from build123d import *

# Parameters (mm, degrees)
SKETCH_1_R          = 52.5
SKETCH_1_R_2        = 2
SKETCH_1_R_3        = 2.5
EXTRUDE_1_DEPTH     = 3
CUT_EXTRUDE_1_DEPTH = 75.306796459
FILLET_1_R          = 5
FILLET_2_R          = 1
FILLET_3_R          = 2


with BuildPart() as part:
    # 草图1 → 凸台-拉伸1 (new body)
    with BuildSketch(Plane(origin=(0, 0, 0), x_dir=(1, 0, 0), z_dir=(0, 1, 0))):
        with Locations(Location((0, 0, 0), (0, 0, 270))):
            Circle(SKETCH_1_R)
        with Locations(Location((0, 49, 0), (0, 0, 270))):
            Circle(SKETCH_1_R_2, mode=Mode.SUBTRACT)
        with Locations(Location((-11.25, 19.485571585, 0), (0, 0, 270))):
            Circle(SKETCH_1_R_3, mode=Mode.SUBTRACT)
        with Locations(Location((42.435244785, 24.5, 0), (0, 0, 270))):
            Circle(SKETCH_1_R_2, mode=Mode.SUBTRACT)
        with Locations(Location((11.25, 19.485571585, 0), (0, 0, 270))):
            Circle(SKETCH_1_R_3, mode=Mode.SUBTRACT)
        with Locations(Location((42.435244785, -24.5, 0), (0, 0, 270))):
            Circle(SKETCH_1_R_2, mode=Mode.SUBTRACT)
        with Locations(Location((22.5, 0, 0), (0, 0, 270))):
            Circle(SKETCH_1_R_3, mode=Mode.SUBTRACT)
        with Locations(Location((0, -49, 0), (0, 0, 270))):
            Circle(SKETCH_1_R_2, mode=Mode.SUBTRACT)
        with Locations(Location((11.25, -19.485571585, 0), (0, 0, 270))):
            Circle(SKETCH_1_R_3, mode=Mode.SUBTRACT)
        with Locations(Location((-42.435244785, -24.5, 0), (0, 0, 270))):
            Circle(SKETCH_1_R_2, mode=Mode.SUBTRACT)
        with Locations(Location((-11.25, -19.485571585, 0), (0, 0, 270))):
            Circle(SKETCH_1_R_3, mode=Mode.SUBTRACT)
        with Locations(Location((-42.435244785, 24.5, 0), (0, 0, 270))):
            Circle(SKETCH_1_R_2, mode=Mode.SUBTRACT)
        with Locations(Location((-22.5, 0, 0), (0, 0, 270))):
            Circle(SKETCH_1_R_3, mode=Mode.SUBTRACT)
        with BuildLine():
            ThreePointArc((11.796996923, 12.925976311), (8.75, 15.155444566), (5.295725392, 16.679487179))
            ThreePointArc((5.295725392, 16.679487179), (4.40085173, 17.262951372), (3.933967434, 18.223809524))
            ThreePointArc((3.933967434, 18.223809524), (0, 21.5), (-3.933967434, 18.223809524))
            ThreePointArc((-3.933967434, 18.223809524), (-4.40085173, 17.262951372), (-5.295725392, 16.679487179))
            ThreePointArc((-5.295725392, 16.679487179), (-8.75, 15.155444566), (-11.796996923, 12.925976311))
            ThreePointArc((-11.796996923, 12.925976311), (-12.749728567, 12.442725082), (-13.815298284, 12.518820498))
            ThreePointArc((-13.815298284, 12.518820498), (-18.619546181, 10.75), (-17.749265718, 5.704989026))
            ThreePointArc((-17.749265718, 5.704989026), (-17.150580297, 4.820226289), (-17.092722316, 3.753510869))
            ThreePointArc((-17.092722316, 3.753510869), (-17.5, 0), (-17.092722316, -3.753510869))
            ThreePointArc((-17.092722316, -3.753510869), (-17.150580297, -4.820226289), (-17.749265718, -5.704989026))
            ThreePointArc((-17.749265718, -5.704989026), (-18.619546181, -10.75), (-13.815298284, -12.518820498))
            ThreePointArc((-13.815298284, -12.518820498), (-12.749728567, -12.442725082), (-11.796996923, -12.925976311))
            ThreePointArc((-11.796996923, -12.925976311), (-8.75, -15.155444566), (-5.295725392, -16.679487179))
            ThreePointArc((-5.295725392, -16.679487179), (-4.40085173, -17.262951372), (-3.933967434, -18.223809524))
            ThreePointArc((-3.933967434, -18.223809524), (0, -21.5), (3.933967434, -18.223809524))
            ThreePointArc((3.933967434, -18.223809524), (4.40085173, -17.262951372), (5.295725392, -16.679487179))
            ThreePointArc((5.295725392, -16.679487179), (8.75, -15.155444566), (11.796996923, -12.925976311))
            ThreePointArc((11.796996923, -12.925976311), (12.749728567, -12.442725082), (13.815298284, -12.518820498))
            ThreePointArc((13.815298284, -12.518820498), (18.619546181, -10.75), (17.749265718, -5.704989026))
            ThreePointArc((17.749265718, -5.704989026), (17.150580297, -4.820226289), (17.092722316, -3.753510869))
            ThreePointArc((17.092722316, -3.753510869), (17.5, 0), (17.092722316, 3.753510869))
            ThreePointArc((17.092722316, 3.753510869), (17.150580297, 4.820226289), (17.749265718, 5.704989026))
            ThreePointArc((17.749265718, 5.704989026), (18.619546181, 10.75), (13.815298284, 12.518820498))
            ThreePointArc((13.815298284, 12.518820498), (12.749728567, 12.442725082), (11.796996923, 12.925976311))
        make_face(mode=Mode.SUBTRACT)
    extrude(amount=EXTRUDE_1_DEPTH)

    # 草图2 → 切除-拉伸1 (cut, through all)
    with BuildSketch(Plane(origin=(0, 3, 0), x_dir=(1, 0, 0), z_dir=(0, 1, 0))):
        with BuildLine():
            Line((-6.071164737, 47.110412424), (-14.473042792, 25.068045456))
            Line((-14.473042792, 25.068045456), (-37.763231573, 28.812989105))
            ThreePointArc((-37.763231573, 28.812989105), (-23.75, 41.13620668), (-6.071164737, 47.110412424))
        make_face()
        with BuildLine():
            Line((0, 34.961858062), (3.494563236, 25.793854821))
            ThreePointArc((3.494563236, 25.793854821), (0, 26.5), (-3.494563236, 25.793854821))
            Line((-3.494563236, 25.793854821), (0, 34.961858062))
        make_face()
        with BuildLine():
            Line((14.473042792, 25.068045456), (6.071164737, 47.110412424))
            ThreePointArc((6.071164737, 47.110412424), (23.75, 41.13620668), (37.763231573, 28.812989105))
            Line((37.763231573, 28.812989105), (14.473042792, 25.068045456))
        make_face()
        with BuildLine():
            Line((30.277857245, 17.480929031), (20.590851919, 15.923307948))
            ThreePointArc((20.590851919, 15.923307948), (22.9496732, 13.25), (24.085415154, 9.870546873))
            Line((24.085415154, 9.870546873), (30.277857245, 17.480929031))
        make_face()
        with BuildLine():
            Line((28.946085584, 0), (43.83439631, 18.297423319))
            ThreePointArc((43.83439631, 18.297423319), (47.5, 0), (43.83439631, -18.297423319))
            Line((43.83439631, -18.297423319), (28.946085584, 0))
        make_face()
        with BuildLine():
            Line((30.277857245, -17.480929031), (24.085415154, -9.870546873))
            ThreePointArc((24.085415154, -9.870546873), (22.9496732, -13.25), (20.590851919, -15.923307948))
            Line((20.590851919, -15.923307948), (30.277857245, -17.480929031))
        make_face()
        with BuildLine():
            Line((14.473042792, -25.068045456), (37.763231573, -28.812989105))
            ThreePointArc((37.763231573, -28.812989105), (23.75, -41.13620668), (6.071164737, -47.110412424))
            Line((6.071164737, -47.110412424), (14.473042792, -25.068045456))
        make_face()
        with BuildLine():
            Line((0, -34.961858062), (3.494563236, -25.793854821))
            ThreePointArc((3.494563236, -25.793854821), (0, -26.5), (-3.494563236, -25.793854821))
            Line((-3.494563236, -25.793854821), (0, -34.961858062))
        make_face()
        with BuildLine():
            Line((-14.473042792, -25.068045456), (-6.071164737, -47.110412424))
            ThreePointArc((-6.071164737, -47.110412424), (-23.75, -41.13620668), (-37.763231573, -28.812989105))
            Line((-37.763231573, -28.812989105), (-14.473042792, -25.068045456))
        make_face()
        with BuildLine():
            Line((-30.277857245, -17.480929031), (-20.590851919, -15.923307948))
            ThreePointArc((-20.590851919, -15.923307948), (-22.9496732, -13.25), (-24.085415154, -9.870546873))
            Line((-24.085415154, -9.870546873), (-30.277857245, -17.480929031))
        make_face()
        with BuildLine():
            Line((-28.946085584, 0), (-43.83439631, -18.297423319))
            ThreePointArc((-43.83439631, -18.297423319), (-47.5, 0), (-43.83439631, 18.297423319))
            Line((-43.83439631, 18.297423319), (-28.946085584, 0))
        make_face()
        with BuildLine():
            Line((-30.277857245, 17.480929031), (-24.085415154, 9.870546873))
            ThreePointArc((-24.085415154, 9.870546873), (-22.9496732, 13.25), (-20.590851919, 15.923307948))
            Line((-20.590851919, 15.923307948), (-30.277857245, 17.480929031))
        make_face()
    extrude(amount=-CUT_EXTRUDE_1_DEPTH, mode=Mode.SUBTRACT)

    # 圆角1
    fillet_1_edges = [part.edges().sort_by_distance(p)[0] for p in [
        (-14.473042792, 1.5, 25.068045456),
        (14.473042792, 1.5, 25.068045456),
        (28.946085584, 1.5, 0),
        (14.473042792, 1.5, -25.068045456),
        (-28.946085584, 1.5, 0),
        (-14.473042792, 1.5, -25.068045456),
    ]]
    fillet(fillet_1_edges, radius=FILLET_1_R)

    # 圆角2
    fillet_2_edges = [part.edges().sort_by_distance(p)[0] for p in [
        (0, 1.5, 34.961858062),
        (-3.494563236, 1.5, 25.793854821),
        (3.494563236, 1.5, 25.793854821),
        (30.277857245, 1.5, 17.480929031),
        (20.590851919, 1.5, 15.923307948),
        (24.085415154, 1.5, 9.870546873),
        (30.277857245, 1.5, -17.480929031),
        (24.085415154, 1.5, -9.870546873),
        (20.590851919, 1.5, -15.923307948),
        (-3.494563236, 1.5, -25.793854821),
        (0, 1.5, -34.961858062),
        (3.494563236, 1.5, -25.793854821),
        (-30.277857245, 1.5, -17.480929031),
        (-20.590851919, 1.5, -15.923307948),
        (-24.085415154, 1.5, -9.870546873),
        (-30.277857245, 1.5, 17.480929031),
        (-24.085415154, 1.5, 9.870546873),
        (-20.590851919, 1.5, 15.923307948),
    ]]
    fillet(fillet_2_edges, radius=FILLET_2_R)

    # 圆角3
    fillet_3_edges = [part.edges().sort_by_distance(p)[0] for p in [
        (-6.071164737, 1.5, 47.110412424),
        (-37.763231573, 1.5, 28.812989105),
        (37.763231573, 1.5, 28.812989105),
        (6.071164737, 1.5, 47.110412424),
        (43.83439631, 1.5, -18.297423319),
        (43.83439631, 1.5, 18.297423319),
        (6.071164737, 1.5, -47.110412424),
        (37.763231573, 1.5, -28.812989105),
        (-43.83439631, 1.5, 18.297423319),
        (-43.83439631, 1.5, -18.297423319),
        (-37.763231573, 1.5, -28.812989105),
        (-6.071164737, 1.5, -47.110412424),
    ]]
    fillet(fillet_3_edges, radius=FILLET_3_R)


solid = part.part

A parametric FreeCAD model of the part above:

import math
import FreeCAD as App
import Part
import Sketcher
Q = App.Units.Quantity


def edges_at(feature, points):
    """Names of the edges that pass closest to the given points."""
    edges = feature.Shape.Edges
    near = lambda p: min(range(len(edges)), key=lambda i: edges[i].distToShape(Part.Vertex(*p))[0])
    return sorted({f"Edge{near(p) + 1}" for p in points})

doc = App.newDocument("Part")
body = doc.addObject("PartDesign::Body", "Body")

# Sketch on XZ plane
sketch1 = body.newObject("Sketcher::SketchObject", "Sketch")
sketch1.AttachmentSupport = (doc.getObject("XZ_Plane"), [""])
sketch1.MapMode = "FlatFace"
sketch1.addGeometry([
    Part.Circle(App.Vector(0, 0, 0), App.Vector(0, 0, 1), 52.5),  # 0
    Part.Circle(App.Vector(-42.4, -24.5, 0), App.Vector(0, 0, 1), 2),  # 1
    Part.Circle(App.Vector(0, -49, 0), App.Vector(0, 0, 1), 2),  # 2
    Part.Circle(App.Vector(-11.2, -19.5, 0), App.Vector(0, 0, 1), 2.5),  # 3
    Part.Circle(App.Vector(-42.4, 24.5, 0), App.Vector(0, 0, 1), 2),  # 4
    Part.Circle(App.Vector(-22.5, 0, 0), App.Vector(0, 0, 1), 2.5),  # 5
    Part.Circle(App.Vector(-11.2, 19.5, 0), App.Vector(0, 0, 1), 2.5),  # 6
    Part.ArcOfCircle(Part.Circle(App.Vector(0, 0, 0), App.Vector(0, 0, 1), 17.5), math.radians(-72), math.radians(-48)),  # 7
    Part.ArcOfCircle(Part.Circle(App.Vector(13.1, -14.4, 0), App.Vector(0, 0, 1), 2), math.radians(70), math.radians(132)),  # 8
    Part.ArcOfCircle(Part.Circle(App.Vector(15.2, -8.8, 0), App.Vector(0, 0, 1), 4), math.radians(-110), math.radians(50)),  # 9
    Part.ArcOfCircle(Part.Circle(App.Vector(19, -4.2, 0), App.Vector(0, 0, 1), 2), math.radians(168), math.radians(230)),  # 10
    Part.ArcOfCircle(Part.Circle(App.Vector(0, 0, 0), App.Vector(0, 0, 1), 17.5), math.radians(-12), math.radians(12)),  # 11
    Part.ArcOfCircle(Part.Circle(App.Vector(19, 4.2, 0), App.Vector(0, 0, 1), 2), math.radians(130), math.radians(192)),  # 12
    Part.ArcOfCircle(Part.Circle(App.Vector(15.2, 8.8, 0), App.Vector(0, 0, 1), 4), math.radians(-50), math.radians(110)),  # 13
    Part.ArcOfCircle(Part.Circle(App.Vector(13.1, 14.4, 0), App.Vector(0, 0, 1), 2), math.radians(-132), math.radians(-70)),  # 14
    Part.ArcOfCircle(Part.Circle(App.Vector(0, 0, 0), App.Vector(0, 0, 1), 17.5), math.radians(48), math.radians(72)),  # 15
    Part.ArcOfCircle(Part.Circle(App.Vector(5.9, 18.6, 0), App.Vector(0, 0, 1), 2), math.radians(-170), math.radians(-108)),  # 16
    Part.ArcOfCircle(Part.Circle(App.Vector(0, 17.5, 0), App.Vector(0, 0, 1), 4), math.radians(10), math.radians(170)),  # 17
    Part.ArcOfCircle(Part.Circle(App.Vector(-5.9, 18.6, 0), App.Vector(0, 0, 1), 2), math.radians(-72), math.radians(-10)),  # 18
    Part.ArcOfCircle(Part.Circle(App.Vector(0, 0, 0), App.Vector(0, 0, 1), 17.5), math.radians(108), math.radians(132)),  # 19
    Part.ArcOfCircle(Part.Circle(App.Vector(-13.1, 14.4, 0), App.Vector(0, 0, 1), 2), math.radians(-110), math.radians(-48)),  # 20
    Part.ArcOfCircle(Part.Circle(App.Vector(-15.2, 8.8, 0), App.Vector(0, 0, 1), 4), math.radians(70), math.radians(230)),  # 21
    Part.ArcOfCircle(Part.Circle(App.Vector(-19, 4.2, 0), App.Vector(0, 0, 1), 2), math.radians(-12), math.radians(50)),  # 22
    Part.ArcOfCircle(Part.Circle(App.Vector(0, 0, 0), App.Vector(0, 0, 1), 17.5), math.radians(168), math.radians(192)),  # 23
    Part.ArcOfCircle(Part.Circle(App.Vector(-19, -4.2, 0), App.Vector(0, 0, 1), 2), math.radians(-50), math.radians(12)),  # 24
    Part.ArcOfCircle(Part.Circle(App.Vector(-15.2, -8.8, 0), App.Vector(0, 0, 1), 4), math.radians(130), math.radians(290)),  # 25
    Part.ArcOfCircle(Part.Circle(App.Vector(-13.1, -14.4, 0), App.Vector(0, 0, 1), 2), math.radians(48), math.radians(110)),  # 26
    Part.ArcOfCircle(Part.Circle(App.Vector(0, 0, 0), App.Vector(0, 0, 1), 17.5), math.radians(-132), math.radians(-108)),  # 27
    Part.ArcOfCircle(Part.Circle(App.Vector(-5.9, -18.6, 0), App.Vector(0, 0, 1), 2), math.radians(10), math.radians(72)),  # 28
    Part.ArcOfCircle(Part.Circle(App.Vector(0, -17.5, 0), App.Vector(0, 0, 1), 4), math.radians(-170), math.radians(-10)),  # 29
    Part.ArcOfCircle(Part.Circle(App.Vector(5.9, -18.6, 0), App.Vector(0, 0, 1), 2), math.radians(108), math.radians(170)),  # 30
    Part.Circle(App.Vector(11.2, -19.5, 0), App.Vector(0, 0, 1), 2.5),  # 31
    Part.Circle(App.Vector(42.4, -24.5, 0), App.Vector(0, 0, 1), 2),  # 32
    Part.Circle(App.Vector(11.2, 19.5, 0), App.Vector(0, 0, 1), 2.5),  # 33
    Part.Circle(App.Vector(0, 49, 0), App.Vector(0, 0, 1), 2),  # 34
    Part.Circle(App.Vector(22.5, 0, 0), App.Vector(0, 0, 1), 2.5),  # 35
    Part.Circle(App.Vector(42.4, 24.5, 0), App.Vector(0, 0, 1), 2),  # 36
], False)
sketch1.addConstraint([
    Sketcher.Constraint("Tangent", 7, 2, 8, 2),
    Sketcher.Constraint("Tangent", 8, 1, 9, 1),
    Sketcher.Constraint("Tangent", 9, 2, 10, 2),
    Sketcher.Constraint("Tangent", 10, 1, 11, 1),
    Sketcher.Constraint("Tangent", 11, 2, 12, 2),
    Sketcher.Constraint("Tangent", 12, 1, 13, 1),
    Sketcher.Constraint("Tangent", 13, 2, 14, 2),
    Sketcher.Constraint("Tangent", 14, 1, 15, 1),
    Sketcher.Constraint("Tangent", 15, 2, 16, 2),
    Sketcher.Constraint("Tangent", 16, 1, 17, 1),
    Sketcher.Constraint("Tangent", 17, 2, 18, 2),
    Sketcher.Constraint("Tangent", 18, 1, 19, 1),
    Sketcher.Constraint("Tangent", 19, 2, 20, 2),
    Sketcher.Constraint("Tangent", 20, 1, 21, 1),
    Sketcher.Constraint("Tangent", 21, 2, 22, 2),
    Sketcher.Constraint("Tangent", 22, 1, 23, 1),
    Sketcher.Constraint("Tangent", 23, 2, 24, 2),
    Sketcher.Constraint("Tangent", 24, 1, 25, 1),
    Sketcher.Constraint("Tangent", 25, 2, 26, 2),
    Sketcher.Constraint("Tangent", 26, 1, 27, 1),
    Sketcher.Constraint("Tangent", 27, 2, 28, 2),
    Sketcher.Constraint("Tangent", 28, 1, 29, 1),
    Sketcher.Constraint("Tangent", 29, 2, 30, 2),
    Sketcher.Constraint("Tangent", 30, 1, 7, 1),
    Sketcher.Constraint("Coincident", 0, 3, -1, 1),
    Sketcher.Constraint("Coincident", 7, 3, -1, 1),
    Sketcher.Constraint("Coincident", 11, 3, -1, 1),
    Sketcher.Constraint("Coincident", 15, 3, -1, 1),
    Sketcher.Constraint("Coincident", 19, 3, -1, 1),
    Sketcher.Constraint("Coincident", 23, 3, -1, 1),
    Sketcher.Constraint("Coincident", 27, 3, -1, 1),
    Sketcher.Constraint("Equal", 1, 2),
    Sketcher.Constraint("Equal", 2, 4),
    Sketcher.Constraint("Equal", 3, 5),
    Sketcher.Constraint("Equal", 5, 6),
    Sketcher.Constraint("Equal", 4, 8),
    Sketcher.Constraint("Equal", 8, 10),
    Sketcher.Constraint("Equal", 7, 11),
    Sketcher.Constraint("Equal", 10, 12),
    Sketcher.Constraint("Equal", 9, 13),
    Sketcher.Constraint("Equal", 12, 14),
    Sketcher.Constraint("Equal", 11, 15),
    Sketcher.Constraint("Equal", 14, 16),
    Sketcher.Constraint("Equal", 13, 17),
    Sketcher.Constraint("Equal", 16, 18),
    Sketcher.Constraint("Equal", 15, 19),
    Sketcher.Constraint("Equal", 18, 20),
    Sketcher.Constraint("Equal", 17, 21),
    Sketcher.Constraint("Equal", 20, 22),
    Sketcher.Constraint("Equal", 19, 23),
    Sketcher.Constraint("Equal", 22, 24),
    Sketcher.Constraint("Equal", 21, 25),
    Sketcher.Constraint("Equal", 24, 26),
    Sketcher.Constraint("Equal", 23, 27),
    Sketcher.Constraint("Equal", 26, 28),
    Sketcher.Constraint("Equal", 25, 29),
    Sketcher.Constraint("Equal", 28, 30),
    Sketcher.Constraint("Equal", 6, 31),
    Sketcher.Constraint("Equal", 30, 32),
    Sketcher.Constraint("Equal", 31, 33),
    Sketcher.Constraint("Equal", 32, 34),
    Sketcher.Constraint("Equal", 33, 35),
    Sketcher.Constraint("Equal", 34, 36),
    Sketcher.Constraint("Symmetric", 9, 3, 21, 3, -1, 1),
    Sketcher.Constraint("Symmetric", 13, 3, 25, 3, -1, 1),
    Sketcher.Constraint("Symmetric", 17, 3, 29, 3, -1, 1),
    Sketcher.Constraint("Symmetric", 6, 3, 31, 3, -1, 1),
    Sketcher.Constraint("Symmetric", 4, 3, 32, 3, -1, 1),
    Sketcher.Constraint("Symmetric", 3, 3, 33, 3, -1, 1),
    Sketcher.Constraint("Symmetric", 2, 3, 34, 3, -1, 1),
    Sketcher.Constraint("Symmetric", 5, 3, 35, 3, -1, 1),
    Sketcher.Constraint("Symmetric", 1, 3, 36, 3, -1, 1),
    Sketcher.Constraint("Symmetric", 13, 3, 21, 3, -2),
    Sketcher.Constraint("Symmetric", 3, 3, 31, 3, -2),
    Sketcher.Constraint("Symmetric", 1, 3, 32, 3, -2),
    Sketcher.Constraint("PointOnObject", 2, 3, -2),
    Sketcher.Constraint("PointOnObject", 5, 3, -1),
    Sketcher.Constraint("PointOnObject", 17, 3, -2),
    Sketcher.Constraint("Diameter", 0, Q("105 mm")),
    Sketcher.Constraint("Diameter", 1, Q("4 mm")),
    Sketcher.Constraint("Diameter", 3, Q("5 mm")),
    Sketcher.Constraint("Radius", 9, Q("4 mm")),
    Sketcher.Constraint("Radius", 7, Q("17.5 mm")),
    Sketcher.Constraint("DistanceY", 2, 3, -1, 1, Q("49 mm")),
    Sketcher.Constraint("DistanceY", 1, 3, -1, 1, Q("24.5 mm")),
    Sketcher.Constraint("DistanceX", 5, 3, -1, 1, Q("22.5 mm")),
    Sketcher.Constraint("DistanceY", -1, 1, 17, 3, Q("17.5 mm")),
    Sketcher.Constraint("DistanceX", 3, 3, -1, 1, Q("11.25 mm")),
    Sketcher.Constraint("DistanceY", 9, 3, -1, 1, Q("8.75 mm")),
    Sketcher.Constraint("DistanceX", -1, 1, 8, 1, Q("13.815298 mm")),
    Sketcher.Constraint("DistanceY", 3, 3, -1, 1, Q("19.485572 mm")),
    Sketcher.Constraint("DistanceX", 1, 3, -1, 1, Q("42.435245 mm")),
])
pad1 = body.newObject("PartDesign::Pad", "Pad")
pad1.Profile = sketch1
pad1.Length = 3
pad1.Reversed = True

# Sketch on XZ plane
sketch2 = body.newObject("Sketcher::SketchObject", "Sketch001")
sketch2.AttachmentSupport = (doc.getObject("XZ_Plane"), [""])
sketch2.MapMode = "FlatFace"
sketch2.AttachmentOffset = App.Placement(App.Vector(0, 0, -3), App.Rotation())
sketch2.addGeometry([
    Part.LineSegment(App.Vector(-14, -25, 0), App.Vector(-6, -47, 0)),  # 0
    Part.ArcOfCircle(Part.Circle(App.Vector(0, 0, 0), App.Vector(0, 0, 1), 47), math.radians(-143), math.radians(-97)),  # 1
    Part.LineSegment(App.Vector(-38, -29, 0), App.Vector(-14, -25, 0)),  # 2
    Part.LineSegment(App.Vector(3, -26, 0), App.Vector(0, -35, 0)),  # 3
    Part.LineSegment(App.Vector(0, -35, 0), App.Vector(-3, -26, 0)),  # 4
    Part.ArcOfCircle(Part.Circle(App.Vector(0, -17, 0), App.Vector(0, 0, 1), 9), math.radians(-113), math.radians(-67)),  # 5
    Part.LineSegment(App.Vector(6, -47, 0), App.Vector(14, -25, 0)),  # 6
    Part.LineSegment(App.Vector(14, -25, 0), App.Vector(38, -29, 0)),  # 7
    Part.ArcOfCircle(Part.Circle(App.Vector(0, 0, 0), App.Vector(0, 0, 1), 47), math.radians(-83), math.radians(-37)),  # 8
    Part.LineSegment(App.Vector(30, -17, 0), App.Vector(21, -16, 0)),  # 9
    Part.ArcOfCircle(Part.Circle(App.Vector(15, -9, 0), App.Vector(0, 0, 1), 9), math.radians(-53), math.radians(-7)),  # 10
    Part.LineSegment(App.Vector(24, -10, 0), App.Vector(30, -17, 0)),  # 11
    Part.LineSegment(App.Vector(44, -18, 0), App.Vector(29, 0, 0)),  # 12
    Part.LineSegment(App.Vector(29, 0, 0), App.Vector(44, 18, 0)),  # 13
    Part.ArcOfCircle(Part.Circle(App.Vector(0, 0, 0), App.Vector(0, 0, 1), 47), math.radians(-23), math.radians(23)),  # 14
    Part.LineSegment(App.Vector(30, 17, 0), App.Vector(24, 10, 0)),  # 15
    Part.ArcOfCircle(Part.Circle(App.Vector(15, 9, 0), App.Vector(0, 0, 1), 9), math.radians(7), math.radians(53)),  # 16
    Part.LineSegment(App.Vector(21, 16, 0), App.Vector(30, 17, 0)),  # 17
    Part.LineSegment(App.Vector(38, 29, 0), App.Vector(14, 25, 0)),  # 18
    Part.LineSegment(App.Vector(14, 25, 0), App.Vector(6, 47, 0)),  # 19
    Part.ArcOfCircle(Part.Circle(App.Vector(0, 0, 0), App.Vector(0, 0, 1), 47), math.radians(37), math.radians(83)),  # 20
    Part.LineSegment(App.Vector(0, 35, 0), App.Vector(3, 26, 0)),  # 21
    Part.ArcOfCircle(Part.Circle(App.Vector(0, 17, 0), App.Vector(0, 0, 1), 9), math.radians(67), math.radians(113)),  # 22
    Part.LineSegment(App.Vector(-3, 26, 0), App.Vector(0, 35, 0)),  # 23
    Part.LineSegment(App.Vector(-6, 47, 0), App.Vector(-14, 25, 0)),  # 24
    Part.LineSegment(App.Vector(-14, 25, 0), App.Vector(-38, 29, 0)),  # 25
    Part.ArcOfCircle(Part.Circle(App.Vector(0, 0, 0), App.Vector(0, 0, 1), 47), math.radians(97), math.radians(143)),  # 26
    Part.LineSegment(App.Vector(-30, 17, 0), App.Vector(-21, 16, 0)),  # 27
    Part.ArcOfCircle(Part.Circle(App.Vector(-15, 9, 0), App.Vector(0, 0, 1), 9), math.radians(127), math.radians(173)),  # 28
    Part.LineSegment(App.Vector(-24, 10, 0), App.Vector(-30, 17, 0)),  # 29
    Part.LineSegment(App.Vector(-44, 18, 0), App.Vector(-29, 0, 0)),  # 30
    Part.LineSegment(App.Vector(-29, 0, 0), App.Vector(-44, -18, 0)),  # 31
    Part.ArcOfCircle(Part.Circle(App.Vector(0, 0, 0), App.Vector(0, 0, 1), 47), math.radians(157), math.radians(203)),  # 32
    Part.LineSegment(App.Vector(-30, -17, 0), App.Vector(-24, -10, 0)),  # 33
    Part.ArcOfCircle(Part.Circle(App.Vector(-15, -9, 0), App.Vector(0, 0, 1), 9), math.radians(-173), math.radians(-127)),  # 34
    Part.LineSegment(App.Vector(-21, -16, 0), App.Vector(-30, -17, 0)),  # 35
], False)
sketch2.addConstraint([
    Sketcher.Constraint("Coincident", 0, 2, 1, 2),
    Sketcher.Constraint("Coincident", 1, 1, 2, 1),
    Sketcher.Constraint("Coincident", 2, 2, 0, 1),
    Sketcher.Constraint("Coincident", 3, 2, 4, 1),
    Sketcher.Constraint("Coincident", 4, 2, 5, 1),
    Sketcher.Constraint("Coincident", 5, 2, 3, 1),
    Sketcher.Constraint("Coincident", 6, 2, 7, 1),
    Sketcher.Constraint("Coincident", 7, 2, 8, 2),
    Sketcher.Constraint("Coincident", 8, 1, 6, 1),
    Sketcher.Constraint("Coincident", 9, 2, 10, 1),
    Sketcher.Constraint("Coincident", 10, 2, 11, 1),
    Sketcher.Constraint("Coincident", 11, 2, 9, 1),
    Sketcher.Constraint("Coincident", 12, 2, 13, 1),
    Sketcher.Constraint("Coincident", 13, 2, 14, 2),
    Sketcher.Constraint("Coincident", 14, 1, 12, 1),
    Sketcher.Constraint("Coincident", 15, 2, 16, 1),
    Sketcher.Constraint("Coincident", 16, 2, 17, 1),
    Sketcher.Constraint("Coincident", 17, 2, 15, 1),
    Sketcher.Constraint("Coincident", 18, 2, 19, 1),
    Sketcher.Constraint("Coincident", 19, 2, 20, 2),
    Sketcher.Constraint("Coincident", 20, 1, 18, 1),
    Sketcher.Constraint("Coincident", 21, 2, 22, 1),
    Sketcher.Constraint("Coincident", 22, 2, 23, 1),
    Sketcher.Constraint("Coincident", 23, 2, 21, 1),
    Sketcher.Constraint("Coincident", 24, 2, 25, 1),
    Sketcher.Constraint("Coincident", 25, 2, 26, 2),
    Sketcher.Constraint("Coincident", 26, 1, 24, 1),
    Sketcher.Constraint("Coincident", 27, 2, 28, 1),
    Sketcher.Constraint("Coincident", 28, 2, 29, 1),
    Sketcher.Constraint("Coincident", 29, 2, 27, 1),
    Sketcher.Constraint("Coincident", 30, 2, 31, 1),
    Sketcher.Constraint("Coincident", 31, 2, 32, 2),
    Sketcher.Constraint("Coincident", 32, 1, 30, 1),
    Sketcher.Constraint("Coincident", 33, 2, 34, 1),
    Sketcher.Constraint("Coincident", 34, 2, 35, 1),
    Sketcher.Constraint("Coincident", 35, 2, 33, 1),
    Sketcher.Constraint("Coincident", 1, 3, -1, 1),
    Sketcher.Constraint("Coincident", 8, 3, -1, 1),
    Sketcher.Constraint("Coincident", 14, 3, -1, 1),
    Sketcher.Constraint("Coincident", 20, 3, -1, 1),
    Sketcher.Constraint("Coincident", 26, 3, -1, 1),
    Sketcher.Constraint("Coincident", 32, 3, -1, 1),
    Sketcher.Constraint("Equal", 1, 8),
    Sketcher.Constraint("Equal", 5, 10),
    Sketcher.Constraint("Equal", 8, 14),
    Sketcher.Constraint("Equal", 10, 16),
    Sketcher.Constraint("Equal", 14, 20),
    Sketcher.Constraint("Equal", 16, 22),
    Sketcher.Constraint("Equal", 20, 26),
    Sketcher.Constraint("Equal", 22, 28),
    Sketcher.Constraint("Equal", 26, 32),
    Sketcher.Constraint("Equal", 28, 34),
    Sketcher.Constraint("Symmetric", 5, 3, 22, 3, -1, 1),
    Sketcher.Constraint("Symmetric", 10, 3, 28, 3, -1, 1),
    Sketcher.Constraint("Symmetric", 16, 3, 34, 3, -1, 1),
    Sketcher.Constraint("Symmetric", 2, 2, 18, 2, -1, 1),
    Sketcher.Constraint("Symmetric", 3, 2, 23, 2, -1, 1),
    Sketcher.Constraint("Symmetric", 6, 2, 24, 2, -1, 1),
    Sketcher.Constraint("Symmetric", 11, 2, 29, 2, -1, 1),
    Sketcher.Constraint("Symmetric", 12, 2, 30, 2, -1, 1),
    Sketcher.Constraint("Symmetric", 17, 2, 35, 2, -1, 1),
    Sketcher.Constraint("Symmetric", 16, 3, 28, 3, -2),
    Sketcher.Constraint("Symmetric", 4, 2, 5, 2, -2),
    Sketcher.Constraint("Symmetric", 2, 2, 6, 2, -2),
    Sketcher.Constraint("Symmetric", 17, 2, 29, 2, -2),
    Sketcher.Constraint("PointOnObject", 3, 2, -2),
    Sketcher.Constraint("PointOnObject", 12, 2, -1),
    Sketcher.Constraint("Parallel", 0, 4),
    Sketcher.Constraint("Parallel", 3, 6),
    Sketcher.Constraint("Parallel", 7, 9),
    Sketcher.Constraint("Parallel", 11, 12),
    Sketcher.Constraint("Parallel", 13, 15),
    Sketcher.Constraint("Parallel", 2, 17),
    Sketcher.Constraint("Parallel", 17, 18),
    Sketcher.Constraint("Parallel", 4, 19),
    Sketcher.Constraint("Parallel", 19, 21),
    Sketcher.Constraint("Parallel", 6, 23),
    Sketcher.Constraint("Parallel", 23, 24),
    Sketcher.Constraint("Parallel", 9, 25),
    Sketcher.Constraint("Parallel", 25, 27),
    Sketcher.Constraint("Parallel", 12, 29),
    Sketcher.Constraint("Parallel", 29, 30),
    Sketcher.Constraint("Parallel", 15, 31),
    Sketcher.Constraint("Parallel", 31, 33),
    Sketcher.Constraint("Parallel", 18, 35),
    Sketcher.Constraint("Horizontal", 1, 1, 7, 2),
    Sketcher.Constraint("Horizontal", 15, 2, 28, 2),
    Sketcher.Constraint("Equal", 0, 2),
    Sketcher.Constraint("Equal", 4, 9),
    Sketcher.Constraint("Equal", 9, 11),
    Sketcher.Constraint("Equal", 7, 12),
    Sketcher.Constraint("Radius", 5, Q("9 mm")),
    Sketcher.Constraint("Radius", 1, Q("47.5 mm")),
    Sketcher.Constraint("DistanceY", 5, 3, -1, 1, Q("17.5 mm")),
    Sketcher.Constraint("DistanceY", 10, 3, 16, 3, Q("17.5 mm")),
    Sketcher.Constraint("DistanceX", 34, 3, 2, 2, Q("0.682402 mm")),
    Sketcher.Constraint("DistanceX", 0, 2, 4, 2, Q("2.576602 mm")),
    Sketcher.Constraint("DistanceY", 6, 2, 10, 2, Q("15.197499 mm")),
    Sketcher.Constraint("Distance", 0, Q("23.589351 mm")),
    Sketcher.Constraint("DistanceX", 1, 1, -1, 1, Q("37.763232 mm")),
    Sketcher.Constraint("DistanceY", 3, 2, -1, 1, Q("34.961858 mm")),
])
pocket1 = body.newObject("PartDesign::Pocket", "Pocket")
pocket1.Profile = sketch2
pocket1.Type = "ThroughAll"
pocket1.Reversed = True
doc.recompute()

fillet = body.newObject("PartDesign::Fillet", "Fillet")
fillet.Base = (pocket1, edges_at(pocket1, [
    (-14.473, 1.5, 25.068),
    (14.473, 1.5, 25.068),
    (28.946, 1.5, 0),
    (14.473, 1.5, -25.068),
    (-28.946, 1.5, 0),
    (-14.473, 1.5, -25.068),
]))
fillet.Radius = 5
doc.recompute()

fillet2 = body.newObject("PartDesign::Fillet", "Fillet001")
fillet2.Base = (fillet, edges_at(fillet, [
    (0, 1.5, 34.962),
    (-3.495, 1.5, 25.794),
    (3.495, 1.5, 25.794),
    (30.278, 1.5, 17.481),
    (20.591, 1.5, 15.923),
    (24.085, 1.5, 9.871),
    (30.278, 1.5, -17.481),
    (24.085, 1.5, -9.871),
    (20.591, 1.5, -15.923),
    (-3.495, 1.5, -25.794),
    (0, 1.5, -34.962),
    (3.495, 1.5, -25.794),
    (-30.278, 1.5, -17.481),
    (-20.591, 1.5, -15.923),
    (-24.085, 1.5, -9.871),
    (-30.278, 1.5, 17.481),
    (-24.085, 1.5, 9.871),
    (-20.591, 1.5, 15.923),
]))
fillet2.Radius = 1
doc.recompute()

fillet3 = body.newObject("PartDesign::Fillet", "Fillet002")
fillet3.Base = (fillet2, edges_at(fillet2, [
    (-6.071, 1.5, 47.11),
    (-37.763, 1.5, 28.813),
    (37.763, 1.5, 28.813),
    (6.071, 1.5, 47.11),
    (43.834, 1.5, -18.297),
    (43.834, 1.5, 18.297),
    (6.071, 1.5, -47.11),
    (37.763, 1.5, -28.813),
    (-43.834, 1.5, 18.297),
    (-43.834, 1.5, -18.297),
    (-37.763, 1.5, -28.813),
    (-6.071, 1.5, -47.11),
]))
fillet3.Radius = 2

doc.recompute()
